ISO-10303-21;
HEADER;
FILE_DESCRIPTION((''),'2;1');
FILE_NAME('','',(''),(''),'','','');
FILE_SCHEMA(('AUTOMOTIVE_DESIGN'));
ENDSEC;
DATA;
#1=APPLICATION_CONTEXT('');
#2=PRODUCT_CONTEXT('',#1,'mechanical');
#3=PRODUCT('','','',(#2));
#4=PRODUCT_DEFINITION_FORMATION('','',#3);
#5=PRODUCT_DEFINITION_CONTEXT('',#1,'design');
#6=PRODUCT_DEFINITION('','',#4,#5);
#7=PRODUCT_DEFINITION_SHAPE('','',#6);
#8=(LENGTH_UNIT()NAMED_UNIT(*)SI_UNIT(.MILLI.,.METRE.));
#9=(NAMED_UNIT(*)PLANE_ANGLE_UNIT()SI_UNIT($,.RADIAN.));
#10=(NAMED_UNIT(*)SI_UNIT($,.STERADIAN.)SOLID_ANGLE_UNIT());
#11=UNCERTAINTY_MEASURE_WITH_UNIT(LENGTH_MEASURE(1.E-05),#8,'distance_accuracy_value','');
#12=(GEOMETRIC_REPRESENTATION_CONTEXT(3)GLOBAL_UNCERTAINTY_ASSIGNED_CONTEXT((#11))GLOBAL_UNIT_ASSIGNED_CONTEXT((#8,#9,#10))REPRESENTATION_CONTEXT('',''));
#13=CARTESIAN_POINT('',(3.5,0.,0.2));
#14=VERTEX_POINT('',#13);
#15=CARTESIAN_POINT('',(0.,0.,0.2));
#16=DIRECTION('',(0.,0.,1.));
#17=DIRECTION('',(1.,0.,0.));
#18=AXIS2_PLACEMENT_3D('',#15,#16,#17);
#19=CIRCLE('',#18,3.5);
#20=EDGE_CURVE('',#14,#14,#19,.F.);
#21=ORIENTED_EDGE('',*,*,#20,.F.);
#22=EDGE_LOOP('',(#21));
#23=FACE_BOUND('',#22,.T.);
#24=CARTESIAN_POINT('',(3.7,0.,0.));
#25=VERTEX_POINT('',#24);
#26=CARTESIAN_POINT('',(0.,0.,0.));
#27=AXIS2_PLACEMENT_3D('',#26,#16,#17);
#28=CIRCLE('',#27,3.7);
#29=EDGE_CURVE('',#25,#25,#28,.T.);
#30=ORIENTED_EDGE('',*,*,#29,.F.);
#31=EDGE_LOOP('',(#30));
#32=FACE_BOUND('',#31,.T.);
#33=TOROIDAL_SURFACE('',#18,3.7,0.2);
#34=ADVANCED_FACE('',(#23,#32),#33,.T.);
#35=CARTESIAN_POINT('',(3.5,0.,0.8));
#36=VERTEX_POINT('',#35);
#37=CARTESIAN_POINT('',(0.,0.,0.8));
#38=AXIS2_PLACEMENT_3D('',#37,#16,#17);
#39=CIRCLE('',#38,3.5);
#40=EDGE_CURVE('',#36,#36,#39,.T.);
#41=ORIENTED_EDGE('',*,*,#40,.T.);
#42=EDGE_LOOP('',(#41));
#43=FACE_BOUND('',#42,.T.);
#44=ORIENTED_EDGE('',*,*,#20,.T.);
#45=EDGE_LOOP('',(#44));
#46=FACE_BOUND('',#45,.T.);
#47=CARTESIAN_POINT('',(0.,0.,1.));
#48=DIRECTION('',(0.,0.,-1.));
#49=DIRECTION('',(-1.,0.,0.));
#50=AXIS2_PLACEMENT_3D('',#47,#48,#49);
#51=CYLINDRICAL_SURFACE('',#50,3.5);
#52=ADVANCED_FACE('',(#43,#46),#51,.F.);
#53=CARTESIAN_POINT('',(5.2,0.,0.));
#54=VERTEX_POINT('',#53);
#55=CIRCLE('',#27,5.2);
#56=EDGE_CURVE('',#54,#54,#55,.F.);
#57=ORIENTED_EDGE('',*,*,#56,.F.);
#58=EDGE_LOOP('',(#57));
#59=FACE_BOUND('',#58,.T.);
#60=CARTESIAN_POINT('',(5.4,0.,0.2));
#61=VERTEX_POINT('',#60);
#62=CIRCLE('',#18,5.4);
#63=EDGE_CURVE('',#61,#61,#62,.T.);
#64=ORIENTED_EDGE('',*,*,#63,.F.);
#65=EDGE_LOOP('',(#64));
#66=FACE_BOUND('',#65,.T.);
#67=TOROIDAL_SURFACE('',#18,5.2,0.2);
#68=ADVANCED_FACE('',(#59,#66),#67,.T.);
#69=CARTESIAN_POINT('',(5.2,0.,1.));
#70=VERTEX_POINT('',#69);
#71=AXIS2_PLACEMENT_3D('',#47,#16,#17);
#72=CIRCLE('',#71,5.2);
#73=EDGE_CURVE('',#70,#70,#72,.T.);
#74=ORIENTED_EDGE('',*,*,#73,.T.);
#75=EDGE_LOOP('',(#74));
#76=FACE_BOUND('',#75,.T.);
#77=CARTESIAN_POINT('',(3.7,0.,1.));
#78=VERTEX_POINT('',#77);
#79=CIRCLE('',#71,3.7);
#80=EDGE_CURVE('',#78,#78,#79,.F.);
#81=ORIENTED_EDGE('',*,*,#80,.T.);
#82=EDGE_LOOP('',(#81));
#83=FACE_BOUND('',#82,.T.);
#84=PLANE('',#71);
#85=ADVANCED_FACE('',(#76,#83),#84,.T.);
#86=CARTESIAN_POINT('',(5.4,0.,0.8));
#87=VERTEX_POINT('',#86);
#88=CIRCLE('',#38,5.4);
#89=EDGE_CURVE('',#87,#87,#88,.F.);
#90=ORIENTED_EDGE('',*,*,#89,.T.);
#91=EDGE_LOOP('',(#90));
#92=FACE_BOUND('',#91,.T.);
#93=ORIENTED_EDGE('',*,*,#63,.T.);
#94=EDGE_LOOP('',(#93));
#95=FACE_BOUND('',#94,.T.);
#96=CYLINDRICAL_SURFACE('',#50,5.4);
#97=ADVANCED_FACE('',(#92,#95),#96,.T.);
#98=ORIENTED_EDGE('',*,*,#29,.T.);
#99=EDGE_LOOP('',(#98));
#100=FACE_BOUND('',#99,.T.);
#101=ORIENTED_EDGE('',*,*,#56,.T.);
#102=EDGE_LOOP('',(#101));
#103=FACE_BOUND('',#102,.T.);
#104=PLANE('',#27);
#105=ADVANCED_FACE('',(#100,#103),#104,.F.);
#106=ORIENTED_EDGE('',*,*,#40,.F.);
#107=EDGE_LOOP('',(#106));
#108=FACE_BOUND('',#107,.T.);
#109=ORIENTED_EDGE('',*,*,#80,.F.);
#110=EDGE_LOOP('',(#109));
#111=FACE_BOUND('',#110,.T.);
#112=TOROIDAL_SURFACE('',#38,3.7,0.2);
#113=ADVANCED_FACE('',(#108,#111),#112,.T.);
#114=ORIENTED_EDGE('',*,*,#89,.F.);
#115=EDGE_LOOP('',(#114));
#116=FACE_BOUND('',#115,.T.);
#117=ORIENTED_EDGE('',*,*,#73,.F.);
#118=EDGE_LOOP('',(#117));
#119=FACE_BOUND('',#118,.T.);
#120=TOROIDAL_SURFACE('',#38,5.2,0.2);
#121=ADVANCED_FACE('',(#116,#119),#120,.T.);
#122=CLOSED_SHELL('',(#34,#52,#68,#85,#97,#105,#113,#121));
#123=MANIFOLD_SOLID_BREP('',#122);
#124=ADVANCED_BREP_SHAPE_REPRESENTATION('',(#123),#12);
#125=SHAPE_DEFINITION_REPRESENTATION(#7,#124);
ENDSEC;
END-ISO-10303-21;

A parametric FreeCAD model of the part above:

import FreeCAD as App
import Part
import Sketcher
Q = App.Units.Quantity


def edges_at(feature, points):
    """Names of the edges that pass closest to the given points."""
    edges = feature.Shape.Edges
    near = lambda p: min(range(len(edges)), key=lambda i: edges[i].distToShape(Part.Vertex(*p))[0])
    return sorted({f"Edge{near(p) + 1}" for p in points})

doc = App.newDocument("Part")
body = doc.addObject("PartDesign::Body", "Body")

# Sketch on XY plane
sketch1 = body.newObject("Sketcher::SketchObject", "Sketch")
sketch1.AttachmentSupport = (doc.getObject("XY_Plane"), [""])
sketch1.MapMode = "FlatFace"
sketch1.addGeometry(Part.Circle(App.Vector(0, 0, 0), App.Vector(0, 0, 1), 5.4), False)
sketch1.addGeometry(Part.Circle(App.Vector(0, 0, 0), App.Vector(0, 0, 1), 3.5), False)
sketch1.addConstraint(Sketcher.Constraint("Coincident", 0, 3, -1, 1))
sketch1.addConstraint(Sketcher.Constraint("Coincident", 1, 3, -1, 1))
sketch1.addConstraint(Sketcher.Constraint("Diameter", 1, Q("7 mm")))
sketch1.addConstraint(Sketcher.Constraint("Diameter", 0, Q("10.8 mm")))
pad1 = body.newObject("PartDesign::Pad", "Pad")
pad1.Profile = sketch1
pad1.Length = 1
doc.recompute()

fillet = body.newObject("PartDesign::Fillet", "Fillet")
fillet.Base = (pad1, edges_at(pad1, [
    (-5.4, 0, 0),
    (-5.4, 0, 1),
    (-3.5, 0, 0),
    (-3.5, 0, 1),
]))
fillet.Radius = 0.2

doc.recompute()
